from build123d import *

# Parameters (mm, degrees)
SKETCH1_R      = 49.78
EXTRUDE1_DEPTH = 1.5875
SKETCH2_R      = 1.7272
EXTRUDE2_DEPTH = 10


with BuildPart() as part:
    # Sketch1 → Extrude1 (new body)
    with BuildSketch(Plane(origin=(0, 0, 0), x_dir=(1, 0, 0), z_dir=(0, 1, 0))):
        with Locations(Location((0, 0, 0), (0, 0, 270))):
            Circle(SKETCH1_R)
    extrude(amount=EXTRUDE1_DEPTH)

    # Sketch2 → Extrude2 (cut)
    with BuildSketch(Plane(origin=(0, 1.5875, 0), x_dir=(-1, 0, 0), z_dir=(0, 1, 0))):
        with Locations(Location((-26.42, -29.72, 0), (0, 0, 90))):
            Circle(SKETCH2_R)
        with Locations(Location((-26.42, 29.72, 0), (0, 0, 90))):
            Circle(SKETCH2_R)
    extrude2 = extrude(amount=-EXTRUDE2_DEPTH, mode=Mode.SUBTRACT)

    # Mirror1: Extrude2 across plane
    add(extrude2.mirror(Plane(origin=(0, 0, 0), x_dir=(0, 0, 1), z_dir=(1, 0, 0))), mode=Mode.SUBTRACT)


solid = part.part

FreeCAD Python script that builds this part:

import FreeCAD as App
import Part
import Sketcher
Q = App.Units.Quantity

doc = App.newDocument("Part")
body = doc.addObject("PartDesign::Body", "Body")

# Sketch on XZ plane
sketch1 = body.newObject("Sketcher::SketchObject", "Sketch")
sketch1.AttachmentSupport = (doc.getObject("XZ_Plane"), [""])
sketch1.MapMode = "FlatFace"
sketch1.addGeometry(Part.Circle(App.Vector(0, 0, 0), App.Vector(0, 0, 1), 50), False)
sketch1.addConstraint(Sketcher.Constraint("Coincident", 0, 3, -1, 1))
sketch1.addConstraint(Sketcher.Constraint("Diameter", 0, 99.56))
pad1 = body.newObject("PartDesign::Pad", "Pad")
pad1.Profile = sketch1
pad1.Length = Q("0.0625 in")
pad1.Reversed = True

# Sketch on XZ plane
sketch2 = body.newObject("Sketcher::SketchObject", "Sketch001")
sketch2.AttachmentSupport = (doc.getObject("XZ_Plane"), [""])
sketch2.MapMode = "FlatFace"
sketch2.AttachmentOffset = App.Placement(App.Vector(0, 0, -0.0625 * 25.4), App.Rotation())
sketch2.addGeometry(Part.Circle(App.Vector(26.4, -29.7, 0), App.Vector(0, 0, 1), 1.7), False)
sketch2.addGeometry(Part.Circle(App.Vector(26.4, 29.7, 0), App.Vector(0, 0, 1), 1.7), False)
sketch2.addConstraint(Sketcher.Constraint("Equal", 0, 1))
sketch2.addConstraint(Sketcher.Constraint("Symmetric", 0, 3, 1, 3, -1))
sketch2.addConstraint(Sketcher.Constraint("Diameter", 0, Q("0.136 in")))
sketch2.addConstraint(Sketcher.Constraint("DistanceX", -1, 1, 0, 3, 26.42))
sketch2.addConstraint(Sketcher.Constraint("DistanceY", 0, 3, -1, 1, 29.72))
pocket1 = body.newObject("PartDesign::Pocket", "Pocket")
pocket1.Profile = sketch2
pocket1.Length = 10
pocket1.Reversed = True
doc.recompute()

mirrored = body.newObject("PartDesign::Mirrored", "Mirrored")
mirrored.Originals = [pocket1]
mirrored.MirrorPlane = (doc.getObject("YZ_Plane"), [""])
body.Tip = mirrored

doc.recompute()
